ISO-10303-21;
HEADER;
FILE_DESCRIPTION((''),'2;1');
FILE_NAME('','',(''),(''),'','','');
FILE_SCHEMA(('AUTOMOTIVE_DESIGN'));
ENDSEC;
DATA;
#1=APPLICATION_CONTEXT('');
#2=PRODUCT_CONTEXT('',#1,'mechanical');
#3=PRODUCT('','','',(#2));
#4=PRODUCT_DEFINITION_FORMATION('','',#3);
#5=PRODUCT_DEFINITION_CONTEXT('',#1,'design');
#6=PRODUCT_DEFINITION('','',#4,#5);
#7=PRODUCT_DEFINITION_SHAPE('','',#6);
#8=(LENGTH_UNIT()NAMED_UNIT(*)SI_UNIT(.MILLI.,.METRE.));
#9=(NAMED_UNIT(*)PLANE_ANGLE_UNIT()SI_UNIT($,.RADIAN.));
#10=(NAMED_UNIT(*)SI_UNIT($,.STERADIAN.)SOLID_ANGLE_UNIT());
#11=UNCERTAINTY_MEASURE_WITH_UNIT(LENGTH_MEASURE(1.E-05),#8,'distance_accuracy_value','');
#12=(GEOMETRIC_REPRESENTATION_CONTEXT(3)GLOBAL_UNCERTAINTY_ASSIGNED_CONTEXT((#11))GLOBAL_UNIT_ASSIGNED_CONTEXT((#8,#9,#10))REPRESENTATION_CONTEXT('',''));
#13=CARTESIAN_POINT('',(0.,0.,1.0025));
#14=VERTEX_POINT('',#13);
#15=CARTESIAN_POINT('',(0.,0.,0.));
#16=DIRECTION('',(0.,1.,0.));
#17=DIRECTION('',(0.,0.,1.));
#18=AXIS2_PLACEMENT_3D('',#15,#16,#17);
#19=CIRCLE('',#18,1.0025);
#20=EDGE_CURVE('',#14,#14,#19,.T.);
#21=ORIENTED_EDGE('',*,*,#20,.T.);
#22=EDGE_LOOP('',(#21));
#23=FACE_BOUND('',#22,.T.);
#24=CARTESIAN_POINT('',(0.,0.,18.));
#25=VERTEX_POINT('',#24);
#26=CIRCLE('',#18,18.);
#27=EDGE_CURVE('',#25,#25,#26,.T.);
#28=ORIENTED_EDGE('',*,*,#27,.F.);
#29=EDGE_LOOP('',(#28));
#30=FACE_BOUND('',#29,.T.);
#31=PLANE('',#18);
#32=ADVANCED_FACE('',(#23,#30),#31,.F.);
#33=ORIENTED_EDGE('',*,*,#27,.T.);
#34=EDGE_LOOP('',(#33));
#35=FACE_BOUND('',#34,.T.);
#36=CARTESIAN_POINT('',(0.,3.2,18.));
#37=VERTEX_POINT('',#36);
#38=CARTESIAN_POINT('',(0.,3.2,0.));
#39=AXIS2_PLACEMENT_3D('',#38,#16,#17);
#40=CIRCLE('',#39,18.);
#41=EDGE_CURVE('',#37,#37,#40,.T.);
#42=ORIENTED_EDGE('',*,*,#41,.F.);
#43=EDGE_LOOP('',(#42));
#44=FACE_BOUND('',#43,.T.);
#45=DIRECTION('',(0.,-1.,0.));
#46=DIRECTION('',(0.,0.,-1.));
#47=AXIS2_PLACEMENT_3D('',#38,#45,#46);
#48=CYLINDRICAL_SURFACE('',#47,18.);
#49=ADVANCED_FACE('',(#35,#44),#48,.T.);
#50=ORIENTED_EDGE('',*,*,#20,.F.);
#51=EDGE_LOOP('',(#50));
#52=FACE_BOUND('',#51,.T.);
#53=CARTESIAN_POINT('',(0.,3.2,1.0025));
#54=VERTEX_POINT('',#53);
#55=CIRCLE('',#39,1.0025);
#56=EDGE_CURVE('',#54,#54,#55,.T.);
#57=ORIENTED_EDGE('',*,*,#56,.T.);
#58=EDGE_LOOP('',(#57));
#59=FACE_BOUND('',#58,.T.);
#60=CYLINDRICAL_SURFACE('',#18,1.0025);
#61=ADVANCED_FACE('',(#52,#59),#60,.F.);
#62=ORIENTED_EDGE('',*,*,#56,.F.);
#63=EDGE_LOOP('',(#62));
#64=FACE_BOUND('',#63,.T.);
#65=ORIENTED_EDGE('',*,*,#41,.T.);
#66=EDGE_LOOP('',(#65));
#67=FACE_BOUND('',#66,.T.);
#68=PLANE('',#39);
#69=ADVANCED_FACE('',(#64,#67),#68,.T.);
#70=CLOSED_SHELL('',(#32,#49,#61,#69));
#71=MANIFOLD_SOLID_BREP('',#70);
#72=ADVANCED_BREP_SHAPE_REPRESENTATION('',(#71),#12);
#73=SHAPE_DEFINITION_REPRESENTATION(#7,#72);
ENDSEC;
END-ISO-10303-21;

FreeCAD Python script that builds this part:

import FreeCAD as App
import Part
import Sketcher
from FreeCAD import Vector

doc = App.newDocument("Part")
params = doc.addObject("Spreadsheet::Sheet", "Params")
for row, (alias, value) in enumerate([
    ("sketch1_diameter", "36 mm"),
    ("pad1_length", "3.2 mm"),
], start=1):
    params.set(f"A{row}", alias)
    params.set(f"B{row}", "=" + value)
    params.setAlias(f"B{row}", alias)

body = doc.addObject("PartDesign::Body", "Body")

# Sketch on XZ plane
sketch1 = doc.addObject("Sketcher::SketchObject", "Sketch")
body.addObject(sketch1)
sketch1.AttachmentSupport = (doc.XZ_Plane, [""])
sketch1.MapMode = "FlatFace"
sketch1.addGeometry(Part.Circle(Vector(0, 0, 0), Vector(0, 0, 1), 18), False)
sketch1.addConstraint([
    Sketcher.Constraint("Coincident", 0, 3, -1, 1),
    Sketcher.Constraint("Diameter", 0, 36.0),
])
sketch1.setExpression("Constraints[1]", "Params.sketch1_diameter")
pad1 = doc.addObject("PartDesign::Pad", "Pad")
body.addObject(pad1)
pad1.Profile = sketch1
pad1.setExpression("Length", "Params.pad1_length")
pad1.Reversed = True

# Sketch on XZ plane
sketch2 = doc.addObject("Sketcher::SketchObject", "Sketch001")
body.addObject(sketch2)
sketch2.AttachmentSupport = (doc.XZ_Plane, [""])
sketch2.MapMode = "FlatFace"
sketch2.AttachmentOffset = App.Placement(Vector(0, 0, -3.2), App.Rotation())
sketch2.addGeometry(Part.Circle(Vector(0, 0, 0), Vector(0, 0, 1), 1), False)
sketch2.addConstraint([
    Sketcher.Constraint("Coincident", 0, 3, -1, 1),
    Sketcher.Constraint("Diameter", 0, 2.005),
])
pocket1 = doc.addObject("PartDesign::Pocket", "Pocket")
body.addObject(pocket1)
pocket1.Profile = sketch2
pocket1.Type = "ThroughAll"
pocket1.Reversed = True

doc.recompute()
